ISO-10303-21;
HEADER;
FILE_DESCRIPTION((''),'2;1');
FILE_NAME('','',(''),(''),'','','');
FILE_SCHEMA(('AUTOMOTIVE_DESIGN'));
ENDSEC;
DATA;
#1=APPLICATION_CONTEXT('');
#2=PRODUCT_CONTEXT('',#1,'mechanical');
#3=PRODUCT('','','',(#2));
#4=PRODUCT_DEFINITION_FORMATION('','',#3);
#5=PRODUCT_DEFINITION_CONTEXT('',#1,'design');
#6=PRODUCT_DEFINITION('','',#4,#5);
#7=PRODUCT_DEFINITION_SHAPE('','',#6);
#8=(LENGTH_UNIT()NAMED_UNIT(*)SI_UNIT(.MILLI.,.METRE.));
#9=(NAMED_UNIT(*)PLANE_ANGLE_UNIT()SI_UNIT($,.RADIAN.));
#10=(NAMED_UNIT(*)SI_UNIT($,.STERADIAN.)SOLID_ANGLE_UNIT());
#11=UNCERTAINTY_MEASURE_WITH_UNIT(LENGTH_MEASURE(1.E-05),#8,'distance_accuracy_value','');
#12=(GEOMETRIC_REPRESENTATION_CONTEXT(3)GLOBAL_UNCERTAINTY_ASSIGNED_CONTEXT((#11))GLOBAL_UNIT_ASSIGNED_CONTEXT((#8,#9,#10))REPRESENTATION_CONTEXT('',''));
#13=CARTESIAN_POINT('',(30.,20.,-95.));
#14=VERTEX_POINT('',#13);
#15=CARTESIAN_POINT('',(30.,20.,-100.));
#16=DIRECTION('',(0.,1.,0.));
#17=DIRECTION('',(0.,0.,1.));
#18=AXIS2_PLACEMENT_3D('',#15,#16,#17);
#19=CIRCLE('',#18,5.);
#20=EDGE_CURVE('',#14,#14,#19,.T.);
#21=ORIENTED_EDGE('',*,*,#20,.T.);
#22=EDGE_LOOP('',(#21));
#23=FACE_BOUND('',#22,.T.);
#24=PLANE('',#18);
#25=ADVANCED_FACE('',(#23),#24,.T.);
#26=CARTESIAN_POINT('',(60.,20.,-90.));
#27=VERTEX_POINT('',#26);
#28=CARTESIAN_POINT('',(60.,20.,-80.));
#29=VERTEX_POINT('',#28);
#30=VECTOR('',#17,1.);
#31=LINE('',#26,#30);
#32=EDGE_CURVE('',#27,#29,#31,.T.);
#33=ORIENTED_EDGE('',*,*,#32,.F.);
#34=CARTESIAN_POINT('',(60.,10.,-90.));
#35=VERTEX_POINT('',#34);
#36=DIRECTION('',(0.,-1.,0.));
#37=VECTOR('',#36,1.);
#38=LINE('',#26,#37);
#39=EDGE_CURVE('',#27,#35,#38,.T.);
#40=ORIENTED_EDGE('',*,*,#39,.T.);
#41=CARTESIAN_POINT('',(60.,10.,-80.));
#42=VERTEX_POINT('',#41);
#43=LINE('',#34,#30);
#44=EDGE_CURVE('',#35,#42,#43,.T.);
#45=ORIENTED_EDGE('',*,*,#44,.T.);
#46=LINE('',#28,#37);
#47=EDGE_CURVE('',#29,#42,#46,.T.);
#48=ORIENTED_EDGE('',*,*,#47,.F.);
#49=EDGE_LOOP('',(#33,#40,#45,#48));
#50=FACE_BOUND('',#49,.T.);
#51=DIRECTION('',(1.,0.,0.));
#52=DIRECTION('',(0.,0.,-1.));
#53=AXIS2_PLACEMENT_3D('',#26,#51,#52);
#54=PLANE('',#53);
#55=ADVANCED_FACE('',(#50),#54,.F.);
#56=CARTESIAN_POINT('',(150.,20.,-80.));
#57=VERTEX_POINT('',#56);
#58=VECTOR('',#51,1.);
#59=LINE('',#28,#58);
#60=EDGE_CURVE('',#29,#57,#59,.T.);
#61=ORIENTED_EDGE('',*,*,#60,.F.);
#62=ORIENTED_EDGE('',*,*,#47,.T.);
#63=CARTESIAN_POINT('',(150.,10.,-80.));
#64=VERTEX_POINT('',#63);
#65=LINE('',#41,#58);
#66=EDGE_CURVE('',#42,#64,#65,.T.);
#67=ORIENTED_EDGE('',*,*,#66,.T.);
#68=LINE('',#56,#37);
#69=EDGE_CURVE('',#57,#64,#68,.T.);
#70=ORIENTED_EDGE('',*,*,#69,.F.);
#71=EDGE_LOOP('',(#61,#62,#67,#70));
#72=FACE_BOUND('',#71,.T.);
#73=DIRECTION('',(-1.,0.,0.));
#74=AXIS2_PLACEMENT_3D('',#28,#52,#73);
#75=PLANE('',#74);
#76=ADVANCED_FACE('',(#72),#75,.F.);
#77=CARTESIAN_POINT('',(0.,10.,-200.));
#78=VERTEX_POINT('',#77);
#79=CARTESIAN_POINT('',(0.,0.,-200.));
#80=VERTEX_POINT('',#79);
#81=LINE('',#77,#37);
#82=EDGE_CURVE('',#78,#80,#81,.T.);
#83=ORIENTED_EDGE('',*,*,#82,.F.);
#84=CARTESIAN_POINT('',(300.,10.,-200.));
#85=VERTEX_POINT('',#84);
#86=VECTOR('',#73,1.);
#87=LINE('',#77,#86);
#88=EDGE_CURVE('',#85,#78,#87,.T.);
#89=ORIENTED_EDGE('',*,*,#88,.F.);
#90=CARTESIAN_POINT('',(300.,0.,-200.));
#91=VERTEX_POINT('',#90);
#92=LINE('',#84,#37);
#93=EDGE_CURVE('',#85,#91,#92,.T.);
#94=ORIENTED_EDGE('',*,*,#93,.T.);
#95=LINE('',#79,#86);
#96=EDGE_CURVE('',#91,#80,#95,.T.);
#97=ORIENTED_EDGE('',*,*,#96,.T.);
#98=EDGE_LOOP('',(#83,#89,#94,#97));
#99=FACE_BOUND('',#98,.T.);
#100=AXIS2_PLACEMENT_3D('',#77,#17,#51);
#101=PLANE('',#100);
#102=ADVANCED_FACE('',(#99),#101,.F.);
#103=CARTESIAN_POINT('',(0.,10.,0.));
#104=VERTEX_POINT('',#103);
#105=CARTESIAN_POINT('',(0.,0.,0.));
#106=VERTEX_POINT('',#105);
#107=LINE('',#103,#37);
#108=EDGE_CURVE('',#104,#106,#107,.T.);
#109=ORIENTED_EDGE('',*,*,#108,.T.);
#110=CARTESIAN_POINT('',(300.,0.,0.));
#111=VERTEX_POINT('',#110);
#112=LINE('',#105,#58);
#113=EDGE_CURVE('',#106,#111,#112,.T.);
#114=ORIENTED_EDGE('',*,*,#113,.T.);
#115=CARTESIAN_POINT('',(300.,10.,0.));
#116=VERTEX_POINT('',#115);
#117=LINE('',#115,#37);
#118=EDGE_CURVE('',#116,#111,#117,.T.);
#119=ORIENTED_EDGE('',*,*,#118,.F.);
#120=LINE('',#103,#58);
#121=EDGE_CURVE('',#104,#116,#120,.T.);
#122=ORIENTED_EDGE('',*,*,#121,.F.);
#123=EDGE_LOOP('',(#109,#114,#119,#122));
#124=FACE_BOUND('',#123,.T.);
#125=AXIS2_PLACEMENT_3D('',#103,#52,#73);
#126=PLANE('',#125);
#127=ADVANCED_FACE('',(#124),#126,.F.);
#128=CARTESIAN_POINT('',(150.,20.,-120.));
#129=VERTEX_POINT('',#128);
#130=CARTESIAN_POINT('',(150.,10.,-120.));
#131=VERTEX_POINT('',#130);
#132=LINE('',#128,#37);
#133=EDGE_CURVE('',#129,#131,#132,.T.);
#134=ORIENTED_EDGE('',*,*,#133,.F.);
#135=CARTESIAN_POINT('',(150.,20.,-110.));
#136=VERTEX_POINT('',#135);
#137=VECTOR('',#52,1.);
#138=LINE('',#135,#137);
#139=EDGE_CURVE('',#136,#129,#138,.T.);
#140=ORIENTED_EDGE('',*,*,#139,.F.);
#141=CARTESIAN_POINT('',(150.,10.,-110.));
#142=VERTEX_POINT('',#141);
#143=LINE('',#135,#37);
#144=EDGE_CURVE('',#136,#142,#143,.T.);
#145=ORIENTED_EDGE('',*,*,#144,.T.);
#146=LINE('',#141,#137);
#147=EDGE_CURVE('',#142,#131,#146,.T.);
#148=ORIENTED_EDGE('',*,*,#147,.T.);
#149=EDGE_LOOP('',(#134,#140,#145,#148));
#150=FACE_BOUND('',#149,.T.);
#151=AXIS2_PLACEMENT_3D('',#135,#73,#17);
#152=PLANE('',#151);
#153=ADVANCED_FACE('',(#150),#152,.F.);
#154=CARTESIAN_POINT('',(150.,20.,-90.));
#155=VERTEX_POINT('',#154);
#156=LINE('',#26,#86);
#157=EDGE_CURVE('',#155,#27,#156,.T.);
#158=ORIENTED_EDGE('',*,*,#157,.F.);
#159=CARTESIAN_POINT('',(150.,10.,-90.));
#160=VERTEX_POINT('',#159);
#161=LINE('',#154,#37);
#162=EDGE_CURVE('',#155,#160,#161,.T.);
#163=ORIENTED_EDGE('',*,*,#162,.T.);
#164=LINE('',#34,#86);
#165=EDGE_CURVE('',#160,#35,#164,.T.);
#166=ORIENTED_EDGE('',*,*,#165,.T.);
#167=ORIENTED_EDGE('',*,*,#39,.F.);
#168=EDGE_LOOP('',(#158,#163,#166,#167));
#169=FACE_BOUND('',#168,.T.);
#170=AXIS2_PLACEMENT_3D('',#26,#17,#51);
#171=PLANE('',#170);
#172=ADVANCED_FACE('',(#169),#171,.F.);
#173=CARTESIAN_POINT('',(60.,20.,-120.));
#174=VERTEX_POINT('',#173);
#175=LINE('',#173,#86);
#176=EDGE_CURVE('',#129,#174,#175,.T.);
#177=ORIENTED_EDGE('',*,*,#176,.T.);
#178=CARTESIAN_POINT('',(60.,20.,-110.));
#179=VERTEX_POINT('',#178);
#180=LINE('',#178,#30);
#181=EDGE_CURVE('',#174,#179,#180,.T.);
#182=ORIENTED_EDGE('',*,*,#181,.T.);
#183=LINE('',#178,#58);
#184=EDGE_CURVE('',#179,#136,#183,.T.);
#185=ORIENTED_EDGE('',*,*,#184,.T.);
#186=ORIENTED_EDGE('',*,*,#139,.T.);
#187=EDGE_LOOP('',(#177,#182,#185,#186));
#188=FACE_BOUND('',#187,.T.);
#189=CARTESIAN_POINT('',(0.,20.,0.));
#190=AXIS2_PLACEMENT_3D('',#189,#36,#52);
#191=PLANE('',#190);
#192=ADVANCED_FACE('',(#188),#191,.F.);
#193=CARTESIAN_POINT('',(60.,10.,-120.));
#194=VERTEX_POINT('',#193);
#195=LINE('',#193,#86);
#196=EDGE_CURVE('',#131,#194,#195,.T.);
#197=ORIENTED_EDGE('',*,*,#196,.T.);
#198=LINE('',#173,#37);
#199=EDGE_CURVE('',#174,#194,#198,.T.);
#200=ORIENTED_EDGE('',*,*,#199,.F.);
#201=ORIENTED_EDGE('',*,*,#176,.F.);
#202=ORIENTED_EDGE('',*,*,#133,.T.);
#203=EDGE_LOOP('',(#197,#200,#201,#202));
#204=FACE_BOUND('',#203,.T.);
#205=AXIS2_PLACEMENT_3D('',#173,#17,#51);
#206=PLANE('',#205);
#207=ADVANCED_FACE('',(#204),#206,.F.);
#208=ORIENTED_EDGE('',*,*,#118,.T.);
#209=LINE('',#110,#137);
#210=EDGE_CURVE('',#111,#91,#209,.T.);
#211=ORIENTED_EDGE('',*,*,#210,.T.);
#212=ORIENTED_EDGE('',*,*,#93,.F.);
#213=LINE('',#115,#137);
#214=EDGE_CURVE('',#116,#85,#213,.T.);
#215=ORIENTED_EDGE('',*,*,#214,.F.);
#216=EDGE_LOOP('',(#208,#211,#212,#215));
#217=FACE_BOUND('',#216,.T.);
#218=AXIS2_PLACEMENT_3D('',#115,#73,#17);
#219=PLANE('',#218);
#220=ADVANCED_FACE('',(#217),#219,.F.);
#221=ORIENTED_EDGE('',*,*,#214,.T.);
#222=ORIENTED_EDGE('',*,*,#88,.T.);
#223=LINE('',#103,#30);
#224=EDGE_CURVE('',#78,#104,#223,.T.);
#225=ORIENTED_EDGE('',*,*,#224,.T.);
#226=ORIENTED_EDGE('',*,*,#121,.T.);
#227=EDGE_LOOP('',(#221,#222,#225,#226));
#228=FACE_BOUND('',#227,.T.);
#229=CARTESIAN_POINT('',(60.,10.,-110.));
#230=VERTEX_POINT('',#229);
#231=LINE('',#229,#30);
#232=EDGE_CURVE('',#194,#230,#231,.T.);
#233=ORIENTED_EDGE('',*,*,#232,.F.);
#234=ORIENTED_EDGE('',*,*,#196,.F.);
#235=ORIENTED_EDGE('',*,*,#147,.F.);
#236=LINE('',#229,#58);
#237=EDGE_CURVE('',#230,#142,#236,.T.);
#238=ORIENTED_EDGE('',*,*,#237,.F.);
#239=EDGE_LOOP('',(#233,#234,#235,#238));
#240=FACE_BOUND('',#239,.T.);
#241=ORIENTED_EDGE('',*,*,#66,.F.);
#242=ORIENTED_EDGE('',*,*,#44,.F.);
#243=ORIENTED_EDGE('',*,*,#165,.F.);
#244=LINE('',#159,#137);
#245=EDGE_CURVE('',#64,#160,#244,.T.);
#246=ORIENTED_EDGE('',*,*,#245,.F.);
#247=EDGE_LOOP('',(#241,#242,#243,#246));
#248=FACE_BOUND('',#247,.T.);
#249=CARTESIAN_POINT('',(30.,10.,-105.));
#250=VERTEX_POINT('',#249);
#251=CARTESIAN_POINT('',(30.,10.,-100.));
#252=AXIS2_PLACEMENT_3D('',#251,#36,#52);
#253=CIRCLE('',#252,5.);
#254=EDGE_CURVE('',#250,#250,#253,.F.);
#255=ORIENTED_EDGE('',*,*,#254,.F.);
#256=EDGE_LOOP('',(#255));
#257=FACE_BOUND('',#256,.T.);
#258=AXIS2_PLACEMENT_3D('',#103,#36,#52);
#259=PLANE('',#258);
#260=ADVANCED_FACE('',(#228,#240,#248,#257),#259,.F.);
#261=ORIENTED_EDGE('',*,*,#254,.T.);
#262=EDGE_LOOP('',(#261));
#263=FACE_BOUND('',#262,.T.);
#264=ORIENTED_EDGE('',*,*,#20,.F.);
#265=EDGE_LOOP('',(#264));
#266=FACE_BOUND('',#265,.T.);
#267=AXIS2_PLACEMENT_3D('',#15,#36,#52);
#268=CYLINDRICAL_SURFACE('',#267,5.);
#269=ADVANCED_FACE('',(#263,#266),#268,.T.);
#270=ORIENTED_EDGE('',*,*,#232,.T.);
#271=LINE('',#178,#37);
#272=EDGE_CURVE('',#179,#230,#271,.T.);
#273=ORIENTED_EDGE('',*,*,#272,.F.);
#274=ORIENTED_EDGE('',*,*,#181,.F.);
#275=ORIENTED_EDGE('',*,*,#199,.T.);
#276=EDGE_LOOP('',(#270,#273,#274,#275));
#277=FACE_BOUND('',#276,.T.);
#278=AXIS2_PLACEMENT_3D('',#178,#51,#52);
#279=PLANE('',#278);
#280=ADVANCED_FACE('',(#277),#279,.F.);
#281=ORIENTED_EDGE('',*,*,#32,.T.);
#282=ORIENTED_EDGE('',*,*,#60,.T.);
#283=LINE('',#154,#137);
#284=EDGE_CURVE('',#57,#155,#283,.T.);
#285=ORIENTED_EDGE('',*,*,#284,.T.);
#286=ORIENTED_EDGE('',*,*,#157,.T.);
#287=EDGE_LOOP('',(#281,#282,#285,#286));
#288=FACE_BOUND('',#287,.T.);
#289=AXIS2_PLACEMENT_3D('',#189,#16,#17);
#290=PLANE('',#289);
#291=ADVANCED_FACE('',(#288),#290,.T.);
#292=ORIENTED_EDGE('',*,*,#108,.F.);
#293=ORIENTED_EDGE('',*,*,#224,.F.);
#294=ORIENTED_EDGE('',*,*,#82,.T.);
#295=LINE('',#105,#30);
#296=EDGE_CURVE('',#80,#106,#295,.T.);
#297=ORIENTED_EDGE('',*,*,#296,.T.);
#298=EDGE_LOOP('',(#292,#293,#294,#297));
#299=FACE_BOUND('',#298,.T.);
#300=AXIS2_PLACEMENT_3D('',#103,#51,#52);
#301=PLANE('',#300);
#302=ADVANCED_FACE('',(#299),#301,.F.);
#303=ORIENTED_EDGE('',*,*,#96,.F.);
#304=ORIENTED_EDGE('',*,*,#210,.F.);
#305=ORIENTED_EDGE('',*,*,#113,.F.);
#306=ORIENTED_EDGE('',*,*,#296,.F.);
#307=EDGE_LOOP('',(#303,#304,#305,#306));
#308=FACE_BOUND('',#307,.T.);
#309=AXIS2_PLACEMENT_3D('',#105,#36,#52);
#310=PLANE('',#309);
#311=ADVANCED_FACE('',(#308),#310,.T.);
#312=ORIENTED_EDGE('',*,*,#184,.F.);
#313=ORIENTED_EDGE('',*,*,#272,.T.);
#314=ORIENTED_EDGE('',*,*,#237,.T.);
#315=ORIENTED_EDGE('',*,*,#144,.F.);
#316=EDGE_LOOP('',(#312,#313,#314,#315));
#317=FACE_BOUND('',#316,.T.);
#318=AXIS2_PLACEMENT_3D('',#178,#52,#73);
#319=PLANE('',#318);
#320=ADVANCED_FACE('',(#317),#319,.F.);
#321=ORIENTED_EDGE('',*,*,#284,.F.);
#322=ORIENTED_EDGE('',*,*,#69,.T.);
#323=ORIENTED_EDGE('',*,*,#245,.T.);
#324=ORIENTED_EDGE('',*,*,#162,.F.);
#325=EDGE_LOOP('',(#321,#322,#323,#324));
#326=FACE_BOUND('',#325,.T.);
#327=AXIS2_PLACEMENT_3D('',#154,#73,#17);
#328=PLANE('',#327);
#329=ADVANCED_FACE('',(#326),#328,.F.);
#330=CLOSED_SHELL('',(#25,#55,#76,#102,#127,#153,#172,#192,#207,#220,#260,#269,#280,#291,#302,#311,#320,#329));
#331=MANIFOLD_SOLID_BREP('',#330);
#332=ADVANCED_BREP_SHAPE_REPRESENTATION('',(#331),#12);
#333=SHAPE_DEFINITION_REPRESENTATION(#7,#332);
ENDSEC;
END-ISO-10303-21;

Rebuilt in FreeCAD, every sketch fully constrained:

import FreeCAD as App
import Part
import Sketcher
from FreeCAD import Vector


def add_polygon(sketch, points):
    """Adds a closed chain of lines whose ends are joined by coincident constraints."""
    first, n = sketch.GeometryCount, len(points)
    for a, b in zip(points, points[1:] + points[:1]):
        sketch.addGeometry(Part.LineSegment(App.Vector(*a, 0), App.Vector(*b, 0)), False)
    for i in range(n):
        sketch.addConstraint(Sketcher.Constraint("Coincident", first + i, 2, first + (i + 1) % n, 1))

doc = App.newDocument("Part")
body = doc.addObject("PartDesign::Body", "Body")

# Sketch on XZ plane
sketch1 = body.newObject("Sketcher::SketchObject", "Sketch")
sketch1.AttachmentSupport = (doc.getObject("XZ_Plane"), [""])
sketch1.MapMode = "FlatFace"
add_polygon(sketch1, [(0, -200), (0, 0), (300, 0), (300, -200)])  # lines 0-3
sketch1.addConstraint([
    Sketcher.Constraint("Vertical", 0),
    Sketcher.Constraint("Horizontal", 1),
    Sketcher.Constraint("Vertical", 2),
    Sketcher.Constraint("Horizontal", 3),
    Sketcher.Constraint("Coincident", 0, 2, -1, 1),
    Sketcher.Constraint("DistanceX", 1, 1, 1, 2, 300.0),
    Sketcher.Constraint("DistanceY", 0, 1, 0, 2, 200.0),
])
pad1 = body.newObject("PartDesign::Pad", "Pad")
pad1.Profile = sketch1
pad1.Length = 10
pad1.Reversed = True

# Sketch on XZ plane
sketch2 = body.newObject("Sketcher::SketchObject", "Sketch001")
sketch2.AttachmentSupport = (doc.getObject("XZ_Plane"), [""])
sketch2.MapMode = "FlatFace"
sketch2.AttachmentOffset = App.Placement(Vector(0, 0, -10), App.Rotation())
sketch2.addGeometry(Part.Circle(Vector(30, -100, 0), Vector(0, 0, 1), 5), False)  # 0
add_polygon(sketch2, [(60, -120), (60, -110), (150, -110), (150, -120)])  # lines 1-4
add_polygon(sketch2, [(60, -90), (60, -80), (150, -80), (150, -90)])  # lines 5-8
sketch2.addConstraint([
    Sketcher.Constraint("Vertical", 1),
    Sketcher.Constraint("Horizontal", 2),
    Sketcher.Constraint("Vertical", 3),
    Sketcher.Constraint("Horizontal", 4),
    Sketcher.Constraint("Vertical", 5),
    Sketcher.Constraint("Horizontal", 6),
    Sketcher.Constraint("Vertical", 7),
    Sketcher.Constraint("Horizontal", 8),
    Sketcher.Constraint("Vertical", 4, 2, 5, 2),
    Sketcher.Constraint("Vertical", 3, 2, 6, 2),
    Sketcher.Constraint("Equal", 3, 5),
    Sketcher.Constraint("Diameter", 0, 10.0),
    Sketcher.Constraint("DistanceX", 2, 1, 2, 2, 90.0),
    Sketcher.Constraint("DistanceY", 1, 1, 1, 2, 10.0),
    Sketcher.Constraint("DistanceX", -1, 1, 0, 3, 30.0),
    Sketcher.Constraint("DistanceY", 0, 3, -1, 1, 100.0),
    Sketcher.Constraint("DistanceX", -1, 1, 1, 2, 60.0),
    Sketcher.Constraint("DistanceY", 1, 2, -1, 1, 110.0),
    Sketcher.Constraint("DistanceY", 5, 2, -1, 1, 80.0),
])
pad2 = body.newObject("PartDesign::Pad", "Pad001")
pad2.Profile = sketch2
pad2.Length = 10
pad2.Reversed = True

doc.recompute()
